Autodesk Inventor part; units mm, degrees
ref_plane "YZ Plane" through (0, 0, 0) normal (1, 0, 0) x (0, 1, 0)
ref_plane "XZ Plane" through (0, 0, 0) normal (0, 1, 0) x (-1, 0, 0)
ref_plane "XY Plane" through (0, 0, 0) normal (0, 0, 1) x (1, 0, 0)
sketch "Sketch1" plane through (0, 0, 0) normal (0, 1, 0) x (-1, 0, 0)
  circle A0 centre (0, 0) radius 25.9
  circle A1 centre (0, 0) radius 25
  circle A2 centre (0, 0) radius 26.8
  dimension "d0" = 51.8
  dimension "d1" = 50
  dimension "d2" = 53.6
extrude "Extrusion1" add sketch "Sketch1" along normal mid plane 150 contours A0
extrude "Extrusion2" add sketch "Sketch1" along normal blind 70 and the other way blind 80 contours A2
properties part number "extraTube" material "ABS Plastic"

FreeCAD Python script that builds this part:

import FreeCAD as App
import Part
import Sketcher
Q = App.Units.Quantity

doc = App.newDocument("Part")
params = doc.addObject("Spreadsheet::Sheet", "Params")
for row, (alias, value) in enumerate([
    ("sketch1_diameter", "50 mm"),
    ("sketch1_diameter2", "51.8 mm"),
    ("pad1_length", "150 mm"),
    ("sketch2_diameter", "53.6 mm"),
    ("sketch2_diameter2", "51.8 mm"),
    ("pad2_length", "70 mm"),
    ("pad2_length2", "80 mm"),
], start=1):
    params.set(f"A{row}", alias)
    params.set(f"B{row}", "=" + value)
    params.setAlias(f"B{row}", alias)

body = doc.addObject("PartDesign::Body", "Body")

# Sketch on XZ plane
sketch1 = body.newObject("Sketcher::SketchObject", "Sketch")
sketch1.AttachmentSupport = (doc.getObject("XZ_Plane"), [""])
sketch1.MapMode = "FlatFace"
sketch1.addGeometry(Part.Circle(App.Vector(0, 0, 0), App.Vector(0, 0, 1), 26), False)
sketch1.addGeometry(Part.Circle(App.Vector(0, 0, 0), App.Vector(0, 0, 1), 25), False)
sketch1.addConstraint(Sketcher.Constraint("Coincident", 0, 3, -1, 1))
sketch1.addConstraint(Sketcher.Constraint("Coincident", 1, 3, -1, 1))
sketch1.addConstraint(Sketcher.Constraint("Diameter", 1, Q("50 mm")))
sketch1.addConstraint(Sketcher.Constraint("Diameter", 0, Q("51.8 mm")))
sketch1.setExpression("Constraints[2]", "Params.sketch1_diameter")
sketch1.setExpression("Constraints[3]", "Params.sketch1_diameter2")
pad1 = body.newObject("PartDesign::Pad", "Pad")
pad1.Profile = sketch1
pad1.setExpression("Length", "Params.pad1_length")
pad1.Midplane = True

# Sketch on XZ plane
sketch2 = body.newObject("Sketcher::SketchObject", "Sketch001")
sketch2.AttachmentSupport = (doc.getObject("XZ_Plane"), [""])
sketch2.MapMode = "FlatFace"
sketch2.addGeometry(Part.Circle(App.Vector(0, 0, 0), App.Vector(0, 0, 1), 27), False)
sketch2.addGeometry(Part.Circle(App.Vector(0, 0, 0), App.Vector(0, 0, 1), 26), False)
sketch2.addConstraint(Sketcher.Constraint("Coincident", 0, 3, -1, 1))
sketch2.addConstraint(Sketcher.Constraint("Coincident", 1, 3, -1, 1))
sketch2.addConstraint(Sketcher.Constraint("Diameter", 0, Q("53.6 mm")))
sketch2.addConstraint(Sketcher.Constraint("Diameter", 1, Q("51.8 mm")))
sketch2.setExpression("Constraints[2]", "Params.sketch2_diameter")
sketch2.setExpression("Constraints[3]", "Params.sketch2_diameter2")
pad2 = body.newObject("PartDesign::Pad", "Pad001")
pad2.Profile = sketch2
pad2.Type = "TwoLengths"
pad2.setExpression("Length", "Params.pad2_length")
pad2.setExpression("Length2", "Params.pad2_length2")
pad2.Reversed = True

doc.recompute()
